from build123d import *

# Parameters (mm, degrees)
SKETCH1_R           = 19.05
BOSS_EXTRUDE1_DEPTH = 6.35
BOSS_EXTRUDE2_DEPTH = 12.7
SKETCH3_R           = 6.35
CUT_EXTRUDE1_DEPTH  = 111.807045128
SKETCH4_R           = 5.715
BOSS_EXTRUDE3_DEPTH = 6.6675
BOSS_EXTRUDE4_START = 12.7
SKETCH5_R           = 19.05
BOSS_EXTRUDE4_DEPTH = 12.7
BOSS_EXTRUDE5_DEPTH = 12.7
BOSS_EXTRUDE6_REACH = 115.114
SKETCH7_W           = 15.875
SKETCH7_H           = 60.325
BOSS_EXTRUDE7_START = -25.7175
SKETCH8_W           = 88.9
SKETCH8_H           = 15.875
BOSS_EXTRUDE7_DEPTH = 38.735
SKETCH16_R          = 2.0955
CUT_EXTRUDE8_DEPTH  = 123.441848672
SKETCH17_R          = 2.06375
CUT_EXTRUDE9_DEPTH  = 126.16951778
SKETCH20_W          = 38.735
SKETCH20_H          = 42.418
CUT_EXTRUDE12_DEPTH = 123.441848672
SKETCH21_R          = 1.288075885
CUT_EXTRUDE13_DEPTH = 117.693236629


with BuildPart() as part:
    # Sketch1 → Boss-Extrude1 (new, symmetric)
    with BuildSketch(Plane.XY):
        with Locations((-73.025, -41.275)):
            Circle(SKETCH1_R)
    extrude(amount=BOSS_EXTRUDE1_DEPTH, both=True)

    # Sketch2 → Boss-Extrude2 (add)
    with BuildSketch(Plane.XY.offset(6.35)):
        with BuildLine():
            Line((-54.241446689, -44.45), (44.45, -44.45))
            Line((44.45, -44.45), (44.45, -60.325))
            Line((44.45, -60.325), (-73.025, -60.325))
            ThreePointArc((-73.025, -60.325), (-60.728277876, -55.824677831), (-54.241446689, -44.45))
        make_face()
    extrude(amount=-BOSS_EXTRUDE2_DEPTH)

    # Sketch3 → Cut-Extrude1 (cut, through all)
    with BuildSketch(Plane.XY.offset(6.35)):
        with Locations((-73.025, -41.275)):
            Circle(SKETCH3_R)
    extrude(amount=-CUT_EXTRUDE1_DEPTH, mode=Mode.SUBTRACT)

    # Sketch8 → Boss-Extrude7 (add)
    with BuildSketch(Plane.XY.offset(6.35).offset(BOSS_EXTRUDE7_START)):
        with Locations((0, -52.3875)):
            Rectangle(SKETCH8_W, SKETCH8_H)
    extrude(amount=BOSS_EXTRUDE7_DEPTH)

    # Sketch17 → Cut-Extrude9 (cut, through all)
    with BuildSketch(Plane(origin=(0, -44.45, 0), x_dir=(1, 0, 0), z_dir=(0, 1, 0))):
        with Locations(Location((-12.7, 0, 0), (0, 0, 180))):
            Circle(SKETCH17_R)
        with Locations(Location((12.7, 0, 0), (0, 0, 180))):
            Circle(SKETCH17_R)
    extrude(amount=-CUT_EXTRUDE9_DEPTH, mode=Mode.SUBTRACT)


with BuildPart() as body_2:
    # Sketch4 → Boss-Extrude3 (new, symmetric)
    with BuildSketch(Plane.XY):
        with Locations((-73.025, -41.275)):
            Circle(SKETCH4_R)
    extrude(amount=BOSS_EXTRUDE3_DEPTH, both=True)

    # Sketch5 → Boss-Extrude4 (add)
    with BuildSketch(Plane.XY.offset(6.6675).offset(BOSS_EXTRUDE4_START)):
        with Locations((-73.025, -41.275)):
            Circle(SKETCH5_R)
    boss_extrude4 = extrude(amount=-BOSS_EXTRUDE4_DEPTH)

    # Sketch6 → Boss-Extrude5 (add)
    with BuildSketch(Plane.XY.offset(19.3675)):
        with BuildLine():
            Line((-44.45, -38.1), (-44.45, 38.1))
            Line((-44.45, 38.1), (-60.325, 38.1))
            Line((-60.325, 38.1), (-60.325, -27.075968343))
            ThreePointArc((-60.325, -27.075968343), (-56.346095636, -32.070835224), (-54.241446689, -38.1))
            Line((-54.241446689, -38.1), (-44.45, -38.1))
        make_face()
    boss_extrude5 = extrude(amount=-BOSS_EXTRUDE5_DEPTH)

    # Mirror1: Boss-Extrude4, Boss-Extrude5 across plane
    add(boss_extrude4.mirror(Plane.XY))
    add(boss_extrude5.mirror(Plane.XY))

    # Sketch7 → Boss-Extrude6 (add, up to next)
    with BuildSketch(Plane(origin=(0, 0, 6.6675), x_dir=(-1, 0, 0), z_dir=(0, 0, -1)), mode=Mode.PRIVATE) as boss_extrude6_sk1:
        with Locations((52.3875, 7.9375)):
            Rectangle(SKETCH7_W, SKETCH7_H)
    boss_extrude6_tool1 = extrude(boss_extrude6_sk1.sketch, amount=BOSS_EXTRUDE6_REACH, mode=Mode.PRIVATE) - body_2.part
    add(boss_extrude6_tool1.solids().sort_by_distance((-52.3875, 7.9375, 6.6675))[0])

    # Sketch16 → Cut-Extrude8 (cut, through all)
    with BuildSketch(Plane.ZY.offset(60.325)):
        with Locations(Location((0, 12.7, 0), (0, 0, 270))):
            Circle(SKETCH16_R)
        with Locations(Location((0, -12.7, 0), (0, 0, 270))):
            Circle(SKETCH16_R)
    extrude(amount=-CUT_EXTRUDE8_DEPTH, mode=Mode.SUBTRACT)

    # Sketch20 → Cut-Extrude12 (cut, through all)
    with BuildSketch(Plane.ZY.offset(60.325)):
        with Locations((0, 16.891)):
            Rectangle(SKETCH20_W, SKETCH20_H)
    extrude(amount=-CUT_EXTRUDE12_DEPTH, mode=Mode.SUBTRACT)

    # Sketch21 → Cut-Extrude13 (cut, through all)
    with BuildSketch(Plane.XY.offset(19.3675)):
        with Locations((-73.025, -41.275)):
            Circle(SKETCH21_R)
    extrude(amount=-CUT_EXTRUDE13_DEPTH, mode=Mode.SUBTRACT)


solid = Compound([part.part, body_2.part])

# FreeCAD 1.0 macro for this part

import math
import FreeCAD as App
import Part
import Sketcher

V = App.Vector
Q = App.Units.Quantity


def add_polygon(sketch, points):
    """Adds a closed chain of lines whose ends are joined by coincident constraints."""
    first, n = sketch.GeometryCount, len(points)
    for a, b in zip(points, points[1:] + points[:1]):
        sketch.addGeometry(Part.LineSegment(App.Vector(*a, 0), App.Vector(*b, 0)), False)
    for i in range(n):
        sketch.addConstraint(Sketcher.Constraint("Coincident", first + i, 2, first + (i + 1) % n, 1))

doc = App.newDocument("Part")
body = doc.addObject("PartDesign::Body", "Body")

sketch1 = body.newObject("Sketcher::SketchObject", "Sketch")
sketch1.AttachmentSupport = (doc.getObject("XY_Plane"), [""])
sketch1.MapMode = "FlatFace"
sketch1.addGeometry(Part.Circle(V(-73, -41, 0), V(0, 0, 1), 19), False)
sketch1.addConstraint(Sketcher.Constraint("Diameter", 0, Q("1.5 in")))
sketch1.addConstraint(Sketcher.Constraint("DistanceX", 0, 3, -1, 1, Q("2.875 in")))
sketch1.addConstraint(Sketcher.Constraint("DistanceY", 0, 3, -1, 1, Q("1.625 in")))
pad1 = body.newObject("PartDesign::Pad", "Pad")
pad1.Profile = sketch1
pad1.Length = Q("0.5 in")
pad1.Midplane = True

sketch2 = body.newObject("Sketcher::SketchObject", "Sketch001")
sketch2.AttachmentSupport = (doc.getObject("XY_Plane"), [""])
sketch2.MapMode = "FlatFace"
sketch2.AttachmentOffset = App.Placement(V(0, 0, 0.25 * 25.4), App.Rotation())
sketch2.addGeometry(Part.LineSegment(V(44, -44, 0), V(-54, -44, 0)), False)
sketch2.addGeometry(Part.ArcOfCircle(Part.Circle(V(-73, -41, 0), V(0, 0, 1), 19), math.radians(-90), math.radians(-10)), False)
sketch2.addGeometry(Part.LineSegment(V(-73, -60, 0), V(44, -60, 0)), False)
sketch2.addGeometry(Part.LineSegment(V(44, -60, 0), V(44, -44, 0)), False)
sketch2.addConstraint(Sketcher.Constraint("Coincident", 0, 2, 1, 2))
sketch2.addConstraint(Sketcher.Constraint("Tangent", 1, 1, 2, 1))
sketch2.addConstraint(Sketcher.Constraint("Coincident", 2, 2, 3, 1))
sketch2.addConstraint(Sketcher.Constraint("Coincident", 3, 2, 0, 1))
sketch2.addConstraint(Sketcher.Constraint("Horizontal", 0))
sketch2.addConstraint(Sketcher.Constraint("Horizontal", 2))
sketch2.addConstraint(Sketcher.Constraint("Vertical", 3))
sketch2.addConstraint(Sketcher.Constraint("Radius", 1, Q("0.75 in")))
sketch2.addConstraint(Sketcher.Constraint("DistanceX", 2, 1, 2, 2, Q("4.625 in")))
sketch2.addConstraint(Sketcher.Constraint("DistanceY", 3, 1, 3, 2, Q("0.625 in")))
sketch2.addConstraint(Sketcher.Constraint("DistanceY", 0, 2, -1, 1, Q("1.75 in")))
sketch2.addConstraint(Sketcher.Constraint("DistanceX", -1, 1, 2, 2, Q("1.75 in")))
pad2 = body.newObject("PartDesign::Pad", "Pad001")
pad2.Profile = sketch2
pad2.Length = Q("0.5 in")
pad2.Reversed = True

sketch3 = body.newObject("Sketcher::SketchObject", "Sketch002")
sketch3.AttachmentSupport = (doc.getObject("XY_Plane"), [""])
sketch3.MapMode = "FlatFace"
sketch3.AttachmentOffset = App.Placement(V(0, 0, 0.25 * 25.4), App.Rotation())
sketch3.addGeometry(Part.Circle(V(-73, -41, 0), V(0, 0, 1), 6), False)
sketch3.addConstraint(Sketcher.Constraint("Diameter", 0, Q("0.5 in")))
sketch3.addConstraint(Sketcher.Constraint("DistanceX", 0, 3, -1, 1, Q("2.875 in")))
sketch3.addConstraint(Sketcher.Constraint("DistanceY", 0, 3, -1, 1, Q("1.625 in")))
pocket1 = body.newObject("PartDesign::Pocket", "Pocket")
pocket1.Profile = sketch3
pocket1.Type = "ThroughAll"

sketch4 = body.newObject("Sketcher::SketchObject", "Sketch003")
sketch4.AttachmentSupport = (doc.getObject("XY_Plane"), [""])
sketch4.MapMode = "FlatFace"
sketch4.AttachmentOffset = App.Placement(V(0, 0, -0.7625 * 25.4), App.Rotation())
add_polygon(sketch4, [(-44, -44), (-44, -60), (44, -60), (44, -44)])
sketch4.addConstraint(Sketcher.Constraint("Vertical", 0))
sketch4.addConstraint(Sketcher.Constraint("Horizontal", 1))
sketch4.addConstraint(Sketcher.Constraint("Vertical", 2))
sketch4.addConstraint(Sketcher.Constraint("Horizontal", 3))
sketch4.addConstraint(Sketcher.Constraint("DistanceX", 1, 1, 1, 2, Q("3.5 in")))
sketch4.addConstraint(Sketcher.Constraint("DistanceY", 0, 2, 0, 1, Q("0.625 in")))
sketch4.addConstraint(Sketcher.Constraint("DistanceX", 0, 2, -1, 1, Q("1.75 in")))
sketch4.addConstraint(Sketcher.Constraint("DistanceY", 2, 2, -1, 1, Q("1.75 in")))
pad3 = body.newObject("PartDesign::Pad", "Pad002")
pad3.Profile = sketch4
pad3.Length = Q("1.525 in")

sketch5 = body.newObject("Sketcher::SketchObject", "Sketch004")
sketch5.AttachmentSupport = (doc.getObject("XZ_Plane"), [""])
sketch5.MapMode = "FlatFace"
sketch5.AttachmentOffset = App.Placement(V(0, 0, 1.75 * 25.4), App.Rotation())
sketch5.addGeometry(Part.Circle(V(-12.7, 0, 0), V(0, 0, 1), 2.1), False)
sketch5.addGeometry(Part.Circle(V(12.7, 0, 0), V(0, 0, 1), 2.1), False)
sketch5.addConstraint(Sketcher.Constraint("Equal", 0, 1))
sketch5.addConstraint(Sketcher.Constraint("Symmetric", 0, 3, 1, 3, -1, 1))
sketch5.addConstraint(Sketcher.Constraint("PointOnObject", 0, 3, -1))
sketch5.addConstraint(Sketcher.Constraint("DistanceX", 0, 3, 1, 3, Q("1 in")))
sketch5.addConstraint(Sketcher.Constraint("Diameter", 0, Q("0.1625 in")))
pocket2 = body.newObject("PartDesign::Pocket", "Pocket001")
pocket2.Profile = sketch5
pocket2.Type = "ThroughAll"
pocket2.Reversed = True
body2 = doc.addObject("PartDesign::Body", "Body001")

sketch6 = body2.newObject("Sketcher::SketchObject", "Sketch005")
sketch6.AttachmentSupport = (doc.getObject("XY_Plane001"), [""])
sketch6.MapMode = "FlatFace"
sketch6.addGeometry(Part.Circle(V(-73, -41, 0), V(0, 0, 1), 6), False)
sketch6.addConstraint(Sketcher.Constraint("Diameter", 0, Q("0.45 in")))
sketch6.addConstraint(Sketcher.Constraint("DistanceX", 0, 3, -1, 1, Q("2.875 in")))
sketch6.addConstraint(Sketcher.Constraint("DistanceY", 0, 3, -1, 1, Q("1.625 in")))
pad4 = body2.newObject("PartDesign::Pad", "Pad003")
pad4.Profile = sketch6
pad4.Length = Q("0.525 in")
pad4.Midplane = True

sketch7 = body2.newObject("Sketcher::SketchObject", "Sketch006")
sketch7.AttachmentSupport = (doc.getObject("XY_Plane001"), [""])
sketch7.MapMode = "FlatFace"
sketch7.AttachmentOffset = App.Placement(V(0, 0, 0.7625 * 25.4), App.Rotation())
sketch7.addGeometry(Part.Circle(V(-73, -41, 0), V(0, 0, 1), 19), False)
sketch7.addConstraint(Sketcher.Constraint("Diameter", 0, Q("1.5 in")))
sketch7.addConstraint(Sketcher.Constraint("DistanceX", 0, 3, -1, 1, Q("2.875 in")))
sketch7.addConstraint(Sketcher.Constraint("DistanceY", 0, 3, -1, 1, Q("1.625 in")))
pad5 = body2.newObject("PartDesign::Pad", "Pad004")
pad5.Profile = sketch7
pad5.Length = Q("0.5 in")
pad5.Reversed = True

sketch8 = body2.newObject("Sketcher::SketchObject", "Sketch007")
sketch8.AttachmentSupport = (doc.getObject("XY_Plane001"), [""])
sketch8.MapMode = "FlatFace"
sketch8.AttachmentOffset = App.Placement(V(0, 0, 0.7625 * 25.4), App.Rotation())
sketch8.addGeometry(Part.LineSegment(V(-44, -38, 0), V(-44, 38, 0)), False)
sketch8.addGeometry(Part.LineSegment(V(-44, 38, 0), V(-60, 38, 0)), False)
sketch8.addGeometry(Part.LineSegment(V(-60, 38, 0), V(-60, -27, 0)), False)
sketch8.addGeometry(Part.ArcOfCircle(Part.Circle(V(-73, -41, 0), V(0, 0, 1), 19), math.radians(10), math.radians(48)), False)
sketch8.addGeometry(Part.LineSegment(V(-54, -38, 0), V(-44, -38, 0)), False)
sketch8.addConstraint(Sketcher.Constraint("Coincident", 0, 2, 1, 1))
sketch8.addConstraint(Sketcher.Constraint("Coincident", 1, 2, 2, 1))
sketch8.addConstraint(Sketcher.Constraint("Coincident", 2, 2, 3, 2))
sketch8.addConstraint(Sketcher.Constraint("Coincident", 3, 1, 4, 1))
sketch8.addConstraint(Sketcher.Constraint("Coincident", 4, 2, 0, 1))
sketch8.addConstraint(Sketcher.Constraint("Vertical", 0))
sketch8.addConstraint(Sketcher.Constraint("Horizontal", 1))
sketch8.addConstraint(Sketcher.Constraint("Vertical", 2))
sketch8.addConstraint(Sketcher.Constraint("Horizontal", 4))
sketch8.addConstraint(Sketcher.Constraint("DistanceY", 0, 1, 0, 2, Q("3 in")))
sketch8.addConstraint(Sketcher.Constraint("Radius", 3, Q("0.75 in")))
sketch8.addConstraint(Sketcher.Constraint("DistanceY", -1, 1, 0, 2, Q("1.5 in")))
sketch8.addConstraint(Sketcher.Constraint("DistanceX", 3, 3, 1, 2, Q("0.5 in")))
sketch8.addConstraint(Sketcher.Constraint("DistanceX", 1, 2, 1, 1, Q("0.625 in")))
sketch8.addConstraint(Sketcher.Constraint("DistanceX", 0, 2, -1, 1, Q("1.75 in")))
sketch8.addConstraint(Sketcher.Constraint("DistanceY", 3, 3, -1, 1, Q("1.625 in")))
pad6 = body2.newObject("PartDesign::Pad", "Pad005")
pad6.Profile = sketch8
pad6.Length = Q("0.5 in")
pad6.Reversed = True
doc.recompute()

mirrored = body2.newObject("PartDesign::Mirrored", "Mirrored")
mirrored.Originals = [pad5, pad6]
mirrored.MirrorPlane = (doc.getObject("XY_Plane001"), [""])
body2.Tip = mirrored

sketch9 = body2.newObject("Sketcher::SketchObject", "Sketch008")
sketch9.AttachmentSupport = (doc.getObject("XY_Plane001"), [""])
sketch9.MapMode = "FlatFace"
sketch9.AttachmentOffset = App.Placement(V(0, 0, 0.2625 * 25.4), App.Rotation())
add_polygon(sketch9, [(-44, 38), (-44, -22), (-60, -22), (-60, 38)])
sketch9.addConstraint(Sketcher.Constraint("Vertical", 0))
sketch9.addConstraint(Sketcher.Constraint("Horizontal", 1))
sketch9.addConstraint(Sketcher.Constraint("Vertical", 2))
sketch9.addConstraint(Sketcher.Constraint("Horizontal", 3))
sketch9.addConstraint(Sketcher.Constraint("DistanceY", -1, 1, 2, 2, Q("1.5 in")))
sketch9.addConstraint(Sketcher.Constraint("DistanceX", 1, 2, 1, 1, Q("0.625 in")))
sketch9.addConstraint(Sketcher.Constraint("DistanceY", 0, 2, 0, 1, Q("2.375 in")))
sketch9.addConstraint(Sketcher.Constraint("DistanceX", 0, 2, -1, 1, Q("1.75 in")))
pad7 = body2.newObject("PartDesign::Pad", "Pad006")
pad7.Profile = sketch9
pad7.Type = "UpToFirst"
pad7.Reversed = True

sketch10 = body2.newObject("Sketcher::SketchObject", "Sketch009")
sketch10.AttachmentSupport = (doc.getObject("YZ_Plane001"), [""])
sketch10.MapMode = "FlatFace"
sketch10.AttachmentOffset = App.Placement(V(0, 0, -2.375 * 25.4), App.Rotation())
sketch10.addGeometry(Part.Circle(V(12.7, 0, 0), V(0, 0, 1), 2.1), False)
sketch10.addGeometry(Part.Circle(V(-12.7, 0, 0), V(0, 0, 1), 2.1), False)
sketch10.addConstraint(Sketcher.Constraint("Equal", 0, 1))
sketch10.addConstraint(Sketcher.Constraint("Symmetric", 0, 3, 1, 3, -1, 1))
sketch10.addConstraint(Sketcher.Constraint("PointOnObject", 0, 3, -1))
sketch10.addConstraint(Sketcher.Constraint("Diameter", 0, Q("0.165 in")))
sketch10.addConstraint(Sketcher.Constraint("DistanceX", 1, 3, 0, 3, Q("1 in")))
pocket3 = body2.newObject("PartDesign::Pocket", "Pocket002")
pocket3.Profile = sketch10
pocket3.Type = "ThroughAll"
pocket3.Reversed = True

sketch11 = body2.newObject("Sketcher::SketchObject", "Sketch010")
sketch11.AttachmentSupport = (doc.getObject("YZ_Plane001"), [""])
sketch11.MapMode = "FlatFace"
sketch11.AttachmentOffset = App.Placement(V(0, 0, -2.375 * 25.4), App.Rotation())
add_polygon(sketch11, [(38, -19), (-4, -19), (-4, 19), (38, 19)])
sketch11.addConstraint(Sketcher.Constraint("Horizontal", 0))
sketch11.addConstraint(Sketcher.Constraint("Vertical", 1))
sketch11.addConstraint(Sketcher.Constraint("Horizontal", 2))
sketch11.addConstraint(Sketcher.Constraint("Vertical", 3))
sketch11.addConstraint(Sketcher.Constraint("DistanceX", 0, 2, 0, 1, Q("1.67 in")))
sketch11.addConstraint(Sketcher.Constraint("DistanceX", -1, 1, 2, 2, Q("1.5 in")))
sketch11.addConstraint(Sketcher.Constraint("DistanceY", 1, 1, 1, 2, Q("1.525 in")))
sketch11.addConstraint(Sketcher.Constraint("DistanceY", 0, 2, -1, 1, Q("0.7625 in")))
pocket4 = body2.newObject("PartDesign::Pocket", "Pocket003")
pocket4.Profile = sketch11
pocket4.Type = "ThroughAll"
pocket4.Reversed = True

sketch12 = body2.newObject("Sketcher::SketchObject", "Sketch011")
sketch12.AttachmentSupport = (doc.getObject("XY_Plane001"), [""])
sketch12.MapMode = "FlatFace"
sketch12.AttachmentOffset = App.Placement(V(0, 0, 0.7625 * 25.4), App.Rotation())
sketch12.addGeometry(Part.Circle(V(-73, -41.3, 0), V(0, 0, 1), 1.3), False)
sketch12.addConstraint(Sketcher.Constraint("Diameter", 0, 2.576152))
sketch12.addConstraint(Sketcher.Constraint("DistanceX", 0, 3, -1, 1, Q("2.875 in")))
sketch12.addConstraint(Sketcher.Constraint("DistanceY", 0, 3, -1, 1, Q("1.625 in")))
pocket5 = body2.newObject("PartDesign::Pocket", "Pocket004")
pocket5.Profile = sketch12
pocket5.Type = "ThroughAll"

doc.recompute()
